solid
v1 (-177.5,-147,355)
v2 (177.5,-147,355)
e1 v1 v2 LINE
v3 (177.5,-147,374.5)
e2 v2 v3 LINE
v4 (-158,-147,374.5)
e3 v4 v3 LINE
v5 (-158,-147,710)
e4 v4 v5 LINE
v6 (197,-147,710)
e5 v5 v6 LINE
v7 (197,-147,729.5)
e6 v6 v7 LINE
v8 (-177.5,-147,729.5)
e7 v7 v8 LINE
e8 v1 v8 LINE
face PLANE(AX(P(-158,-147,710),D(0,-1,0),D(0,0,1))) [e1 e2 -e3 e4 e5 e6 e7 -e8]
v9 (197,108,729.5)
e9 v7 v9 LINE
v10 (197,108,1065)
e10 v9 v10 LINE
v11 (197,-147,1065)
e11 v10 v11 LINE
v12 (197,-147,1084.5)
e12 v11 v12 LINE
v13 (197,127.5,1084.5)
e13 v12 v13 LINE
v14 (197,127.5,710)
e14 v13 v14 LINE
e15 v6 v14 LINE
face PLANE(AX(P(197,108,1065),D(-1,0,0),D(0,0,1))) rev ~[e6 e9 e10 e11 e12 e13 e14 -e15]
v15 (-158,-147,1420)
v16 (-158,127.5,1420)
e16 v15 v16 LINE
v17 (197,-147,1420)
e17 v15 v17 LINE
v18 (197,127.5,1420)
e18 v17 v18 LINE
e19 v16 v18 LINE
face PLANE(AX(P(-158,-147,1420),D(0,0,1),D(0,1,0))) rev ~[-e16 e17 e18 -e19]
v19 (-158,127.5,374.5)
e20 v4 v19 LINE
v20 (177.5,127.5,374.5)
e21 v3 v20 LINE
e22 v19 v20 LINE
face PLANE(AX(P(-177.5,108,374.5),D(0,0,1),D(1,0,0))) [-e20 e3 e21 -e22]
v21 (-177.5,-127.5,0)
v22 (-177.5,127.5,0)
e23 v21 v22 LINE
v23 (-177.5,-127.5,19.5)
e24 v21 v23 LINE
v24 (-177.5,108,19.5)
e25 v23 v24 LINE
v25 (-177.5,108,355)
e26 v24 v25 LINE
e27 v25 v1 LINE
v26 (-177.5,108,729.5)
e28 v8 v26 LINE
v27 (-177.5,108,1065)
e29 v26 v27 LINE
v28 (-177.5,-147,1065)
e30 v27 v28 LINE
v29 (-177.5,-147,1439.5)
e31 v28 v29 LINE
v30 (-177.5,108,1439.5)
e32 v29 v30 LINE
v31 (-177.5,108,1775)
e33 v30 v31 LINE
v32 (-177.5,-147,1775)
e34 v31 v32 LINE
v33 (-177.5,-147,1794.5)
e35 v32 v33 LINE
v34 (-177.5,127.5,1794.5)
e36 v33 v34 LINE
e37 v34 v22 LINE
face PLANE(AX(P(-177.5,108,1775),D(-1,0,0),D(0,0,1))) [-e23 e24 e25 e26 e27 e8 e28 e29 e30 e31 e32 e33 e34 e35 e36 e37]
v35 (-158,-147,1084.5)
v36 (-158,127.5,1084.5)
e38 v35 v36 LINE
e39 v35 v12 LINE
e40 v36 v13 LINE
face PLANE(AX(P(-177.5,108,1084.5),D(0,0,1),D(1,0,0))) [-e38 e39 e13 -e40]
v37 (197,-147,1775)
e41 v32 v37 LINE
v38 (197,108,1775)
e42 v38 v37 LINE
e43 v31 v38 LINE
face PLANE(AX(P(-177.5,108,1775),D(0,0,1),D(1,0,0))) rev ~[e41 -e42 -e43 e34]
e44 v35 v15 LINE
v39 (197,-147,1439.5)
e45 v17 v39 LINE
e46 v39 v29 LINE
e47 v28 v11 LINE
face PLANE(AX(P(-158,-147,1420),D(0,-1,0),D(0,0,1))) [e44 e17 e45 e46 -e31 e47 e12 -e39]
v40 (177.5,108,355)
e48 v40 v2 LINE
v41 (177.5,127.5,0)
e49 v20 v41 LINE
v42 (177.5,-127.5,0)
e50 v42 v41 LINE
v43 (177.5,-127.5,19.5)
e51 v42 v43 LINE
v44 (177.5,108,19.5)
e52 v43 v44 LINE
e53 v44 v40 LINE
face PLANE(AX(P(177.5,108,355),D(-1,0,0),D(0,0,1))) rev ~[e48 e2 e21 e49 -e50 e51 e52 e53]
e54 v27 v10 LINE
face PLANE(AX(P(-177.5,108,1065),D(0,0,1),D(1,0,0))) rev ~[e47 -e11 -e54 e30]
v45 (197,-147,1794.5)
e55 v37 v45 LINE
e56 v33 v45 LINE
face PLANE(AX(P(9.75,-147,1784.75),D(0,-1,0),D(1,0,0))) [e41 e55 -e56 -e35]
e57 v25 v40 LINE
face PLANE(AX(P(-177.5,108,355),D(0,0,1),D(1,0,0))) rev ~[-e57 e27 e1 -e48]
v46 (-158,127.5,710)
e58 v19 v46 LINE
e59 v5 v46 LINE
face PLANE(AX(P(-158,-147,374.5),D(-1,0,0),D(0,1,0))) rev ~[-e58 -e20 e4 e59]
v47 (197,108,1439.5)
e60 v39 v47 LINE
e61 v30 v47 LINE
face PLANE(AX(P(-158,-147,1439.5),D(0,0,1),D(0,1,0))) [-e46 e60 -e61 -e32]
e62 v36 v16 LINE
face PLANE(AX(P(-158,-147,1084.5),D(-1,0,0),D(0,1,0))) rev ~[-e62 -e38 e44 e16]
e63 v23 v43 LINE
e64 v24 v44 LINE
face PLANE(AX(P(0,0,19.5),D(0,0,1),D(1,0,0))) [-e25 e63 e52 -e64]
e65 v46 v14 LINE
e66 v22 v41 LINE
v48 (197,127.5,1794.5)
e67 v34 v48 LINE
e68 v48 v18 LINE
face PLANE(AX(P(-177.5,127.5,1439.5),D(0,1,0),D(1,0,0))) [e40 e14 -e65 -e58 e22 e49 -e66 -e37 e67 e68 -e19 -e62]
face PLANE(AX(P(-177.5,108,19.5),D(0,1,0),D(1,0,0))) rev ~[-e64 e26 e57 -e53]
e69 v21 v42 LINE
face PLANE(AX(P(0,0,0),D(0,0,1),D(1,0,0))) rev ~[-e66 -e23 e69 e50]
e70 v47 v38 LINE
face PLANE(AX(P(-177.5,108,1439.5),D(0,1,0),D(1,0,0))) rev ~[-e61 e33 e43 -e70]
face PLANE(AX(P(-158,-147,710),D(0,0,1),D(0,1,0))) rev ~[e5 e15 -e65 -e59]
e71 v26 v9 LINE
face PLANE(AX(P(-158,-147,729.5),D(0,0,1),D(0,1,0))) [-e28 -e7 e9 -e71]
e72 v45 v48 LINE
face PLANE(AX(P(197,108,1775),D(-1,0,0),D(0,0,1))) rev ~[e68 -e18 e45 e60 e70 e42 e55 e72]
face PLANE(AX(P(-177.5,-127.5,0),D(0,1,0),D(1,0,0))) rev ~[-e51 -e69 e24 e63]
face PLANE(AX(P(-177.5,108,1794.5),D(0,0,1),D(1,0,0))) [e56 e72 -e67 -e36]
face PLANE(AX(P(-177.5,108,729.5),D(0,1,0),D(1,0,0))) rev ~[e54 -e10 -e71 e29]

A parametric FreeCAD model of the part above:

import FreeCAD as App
import Part
import Sketcher


def add_polygon(sketch, points):
    """Adds a closed chain of lines whose ends are joined by coincident constraints."""
    first, n = sketch.GeometryCount, len(points)
    for a, b in zip(points, points[1:] + points[:1]):
        sketch.addGeometry(Part.LineSegment(App.Vector(*a, 0), App.Vector(*b, 0)), False)
    for i in range(n):
        sketch.addConstraint(Sketcher.Constraint("Coincident", first + i, 2, first + (i + 1) % n, 1))

doc = App.newDocument("Part")
params = doc.addObject("Spreadsheet::Sheet", "Params")
for row, (alias, value) in enumerate([
    ("sketch1_width", "355 mm"),
    ("sketch1_height", "255 mm"),
    ("pad1_length", "19.5 mm"),
    ("sketch2_width", "355 mm"),
    ("sketch2_height", "19.5 mm"),
    ("pad2_length", "355 mm"),
    ("sketch3_width", "355 mm"),
    ("sketch3_height", "19.5 mm"),
    ("pad3_length", "255 mm"),
    ("sketch4_width", "19.5 mm"),
    ("sketch4_height", "274.5 mm"),
    ("pad4_length", "355 mm"),
    ("sketch5_width", "274.5 mm"),
    ("sketch5_height", "19.5 mm"),
    ("pad5_length", "355 mm"),
    ("sketch6_width", "374.5 mm"),
    ("sketch6_height", "19.5 mm"),
    ("pad6_length", "355 mm"),
    ("sketch7_width", "374.5 mm"),
    ("sketch7_height", "19.5 mm"),
    ("pad7_length", "255 mm"),
    ("sketch8_width", "19.5 mm"),
    ("sketch8_height", "274.5 mm"),
    ("pad8_length", "355 mm"),
    ("sketch9_width", "274.5 mm"),
    ("sketch9_height", "19.5 mm"),
    ("pad9_length", "355 mm"),
    ("sketch10_width", "374.5 mm"),
    ("sketch10_height", "19.5 mm"),
    ("pad10_length", "355 mm"),
    ("sketch11_width", "374.5 mm"),
    ("sketch11_height", "19.5 mm"),
    ("pad11_length", "255 mm"),
], start=1):
    params.set(f"A{row}", alias)
    params.set(f"B{row}", "=" + value)
    params.setAlias(f"B{row}", alias)

body = doc.addObject("PartDesign::Body", "Body")

# Sketch on XY plane
sketch1 = doc.addObject("Sketcher::SketchObject", "Sketch")
body.addObject(sketch1)
sketch1.AttachmentSupport = (doc.XY_Plane, [""])
sketch1.MapMode = "FlatFace"
add_polygon(sketch1, [(-178, 128), (-178, -128), (178, -128), (178, 128)])  # lines 0-3
sketch1.addConstraint([
    Sketcher.Constraint("Vertical", 0),
    Sketcher.Constraint("Horizontal", 1),
    Sketcher.Constraint("Vertical", 2),
    Sketcher.Constraint("Horizontal", 3),
    Sketcher.Constraint("Symmetric", 0, 2, 2, 2, -1, 1),
    Sketcher.Constraint("DistanceX", 1, 1, 1, 2, 355.0),
    Sketcher.Constraint("DistanceY", 0, 2, 0, 1, 255.0),
])
sketch1.setExpression("Constraints[9]", "Params.sketch1_width")
sketch1.setExpression("Constraints[10]", "Params.sketch1_height")
pad1 = doc.addObject("PartDesign::Pad", "Pad")
body.addObject(pad1)
pad1.Profile = sketch1
pad1.setExpression("Length", "Params.pad1_length")

# Sketch on XY plane
sketch2 = doc.addObject("Sketcher::SketchObject", "Sketch001")
body.addObject(sketch2)
sketch2.AttachmentSupport = (doc.XY_Plane, [""])
sketch2.MapMode = "FlatFace"
sketch2.AttachmentOffset = App.Placement(App.Vector(0, 0, 19.5), App.Rotation())
add_polygon(sketch2, [(-178, 128), (-178, 108), (178, 108), (178, 128)])  # lines 0-3
sketch2.addConstraint([
    Sketcher.Constraint("Vertical", 0),
    Sketcher.Constraint("Horizontal", 1),
    Sketcher.Constraint("Vertical", 2),
    Sketcher.Constraint("Horizontal", 3),
    Sketcher.Constraint("DistanceX", 1, 1, 1, 2, 355.0),
    Sketcher.Constraint("DistanceY", 0, 2, 0, 1, 19.5),
    Sketcher.Constraint("DistanceY", -1, 1, 0, 2, 108.0),
    Sketcher.Constraint("DistanceX", 0, 2, -1, 1, 177.5),
])
sketch2.setExpression("Constraints[8]", "Params.sketch2_width")
sketch2.setExpression("Constraints[9]", "Params.sketch2_height")
pad2 = doc.addObject("PartDesign::Pad", "Pad001")
body.addObject(pad2)
pad2.Profile = sketch2
pad2.setExpression("Length", "Params.pad2_length")

# Sketch on XZ plane
sketch3 = doc.addObject("Sketcher::SketchObject", "Sketch002")
body.addObject(sketch3)
sketch3.AttachmentSupport = (doc.XZ_Plane, [""])
sketch3.MapMode = "FlatFace"
sketch3.AttachmentOffset = App.Placement(App.Vector(0, 0, -108), App.Rotation())
add_polygon(sketch3, [(-178, 374), (-178, 355), (178, 355), (178, 374)])  # lines 0-3
sketch3.addConstraint([
    Sketcher.Constraint("Vertical", 0),
    Sketcher.Constraint("Horizontal", 1),
    Sketcher.Constraint("Vertical", 2),
    Sketcher.Constraint("Horizontal", 3),
    Sketcher.Constraint("DistanceX", 1, 1, 1, 2, 355.0),
    Sketcher.Constraint("DistanceY", 0, 2, 0, 1, 19.5),
    Sketcher.Constraint("DistanceY", -1, 1, 0, 2, 355.0),
    Sketcher.Constraint("DistanceX", 0, 2, -1, 1, 177.5),
])
sketch3.setExpression("Constraints[8]", "Params.sketch3_width")
sketch3.setExpression("Constraints[9]", "Params.sketch3_height")
pad3 = doc.addObject("PartDesign::Pad", "Pad002")
body.addObject(pad3)
pad3.Profile = sketch3
pad3.setExpression("Length", "Params.pad3_length")

# Sketch on XY plane
sketch4 = doc.addObject("Sketcher::SketchObject", "Sketch003")
body.addObject(sketch4)
sketch4.AttachmentSupport = (doc.XY_Plane, [""])
sketch4.MapMode = "FlatFace"
sketch4.AttachmentOffset = App.Placement(App.Vector(0, 0, 374.5), App.Rotation())
add_polygon(sketch4, [(-178, 128), (-178, -147), (-158, -147), (-158, 128)])  # lines 0-3
sketch4.addConstraint([
    Sketcher.Constraint("Vertical", 0),
    Sketcher.Constraint("Horizontal", 1),
    Sketcher.Constraint("Vertical", 2),
    Sketcher.Constraint("Horizontal", 3),
    Sketcher.Constraint("DistanceX", 1, 1, 1, 2, 19.5),
    Sketcher.Constraint("DistanceY", 0, 2, 0, 1, 274.5),
    Sketcher.Constraint("DistanceY", 0, 2, -1, 1, 147.0),
    Sketcher.Constraint("DistanceX", 1, 2, -1, 1, 158.0),
])
sketch4.setExpression("Constraints[8]", "Params.sketch4_width")
sketch4.setExpression("Constraints[9]", "Params.sketch4_height")
pad4 = doc.addObject("PartDesign::Pad", "Pad003")
body.addObject(pad4)
pad4.Profile = sketch4
pad4.setExpression("Length", "Params.pad4_length")

# Sketch on YZ plane
sketch5 = doc.addObject("Sketcher::SketchObject", "Sketch004")
body.addObject(sketch5)
sketch5.AttachmentSupport = (doc.YZ_Plane, [""])
sketch5.MapMode = "FlatFace"
sketch5.AttachmentOffset = App.Placement(App.Vector(0, 0, -158), App.Rotation())
add_polygon(sketch5, [(-147, 730), (-147, 710), (128, 710), (128, 730)])  # lines 0-3
sketch5.addConstraint([
    Sketcher.Constraint("Vertical", 0),
    Sketcher.Constraint("Horizontal", 1),
    Sketcher.Constraint("Vertical", 2),
    Sketcher.Constraint("Horizontal", 3),
    Sketcher.Constraint("DistanceX", 1, 1, 1, 2, 274.5),
    Sketcher.Constraint("DistanceY", 0, 2, 0, 1, 19.5),
    Sketcher.Constraint("DistanceX", 0, 2, -1, 1, 147.0),
    Sketcher.Constraint("DistanceY", -1, 1, 0, 2, 710.0),
])
sketch5.setExpression("Constraints[8]", "Params.sketch5_width")
sketch5.setExpression("Constraints[9]", "Params.sketch5_height")
pad5 = doc.addObject("PartDesign::Pad", "Pad004")
body.addObject(pad5)
pad5.Profile = sketch5
pad5.setExpression("Length", "Params.pad5_length")

# Sketch on XY plane
sketch6 = doc.addObject("Sketcher::SketchObject", "Sketch005")
body.addObject(sketch6)
sketch6.AttachmentSupport = (doc.XY_Plane, [""])
sketch6.MapMode = "FlatFace"
sketch6.AttachmentOffset = App.Placement(App.Vector(0, 0, 729.5), App.Rotation())
add_polygon(sketch6, [(-178, 128), (-178, 108), (197, 108), (197, 128)])  # lines 0-3
sketch6.addConstraint([
    Sketcher.Constraint("Vertical", 0),
    Sketcher.Constraint("Horizontal", 1),
    Sketcher.Constraint("Vertical", 2),
    Sketcher.Constraint("Horizontal", 3),
    Sketcher.Constraint("DistanceX", 1, 1, 1, 2, 374.5),
    Sketcher.Constraint("DistanceY", 0, 2, 0, 1, 19.5),
    Sketcher.Constraint("DistanceY", -1, 1, 0, 2, 108.0),
    Sketcher.Constraint("DistanceX", -1, 1, 1, 2, 197.0),
])
sketch6.setExpression("Constraints[8]", "Params.sketch6_width")
sketch6.setExpression("Constraints[9]", "Params.sketch6_height")
pad6 = doc.addObject("PartDesign::Pad", "Pad005")
body.addObject(pad6)
pad6.Profile = sketch6
pad6.setExpression("Length", "Params.pad6_length")

# Sketch on XZ plane
sketch7 = doc.addObject("Sketcher::SketchObject", "Sketch006")
body.addObject(sketch7)
sketch7.AttachmentSupport = (doc.XZ_Plane, [""])
sketch7.MapMode = "FlatFace"
sketch7.AttachmentOffset = App.Placement(App.Vector(0, 0, -108), App.Rotation())
add_polygon(sketch7, [(-178, 1084), (-178, 1065), (197, 1065), (197, 1084)])  # lines 0-3
sketch7.addConstraint([
    Sketcher.Constraint("Vertical", 0),
    Sketcher.Constraint("Horizontal", 1),
    Sketcher.Constraint("Vertical", 2),
    Sketcher.Constraint("Horizontal", 3),
    Sketcher.Constraint("DistanceX", 1, 1, 1, 2, 374.5),
    Sketcher.Constraint("DistanceY", 0, 2, 0, 1, 19.5),
    Sketcher.Constraint("DistanceY", -1, 1, 0, 2, 1065.0),
    Sketcher.Constraint("DistanceX", -1, 1, 1, 2, 197.0),
])
sketch7.setExpression("Constraints[8]", "Params.sketch7_width")
sketch7.setExpression("Constraints[9]", "Params.sketch7_height")
pad7 = doc.addObject("PartDesign::Pad", "Pad006")
body.addObject(pad7)
pad7.Profile = sketch7
pad7.setExpression("Length", "Params.pad7_length")

# Sketch on XY plane
sketch8 = doc.addObject("Sketcher::SketchObject", "Sketch007")
body.addObject(sketch8)
sketch8.AttachmentSupport = (doc.XY_Plane, [""])
sketch8.MapMode = "FlatFace"
sketch8.AttachmentOffset = App.Placement(App.Vector(0, 0, 1084.5), App.Rotation())
add_polygon(sketch8, [(-178, 128), (-178, -147), (-158, -147), (-158, 128)])  # lines 0-3
sketch8.addConstraint([
    Sketcher.Constraint("Vertical", 0),
    Sketcher.Constraint("Horizontal", 1),
    Sketcher.Constraint("Vertical", 2),
    Sketcher.Constraint("Horizontal", 3),
    Sketcher.Constraint("DistanceX", 1, 1, 1, 2, 19.5),
    Sketcher.Constraint("DistanceY", 0, 2, 0, 1, 274.5),
    Sketcher.Constraint("DistanceY", 0, 2, -1, 1, 147.0),
    Sketcher.Constraint("DistanceX", 1, 2, -1, 1, 158.0),
])
sketch8.setExpression("Constraints[8]", "Params.sketch8_width")
sketch8.setExpression("Constraints[9]", "Params.sketch8_height")
pad8 = doc.addObject("PartDesign::Pad", "Pad007")
body.addObject(pad8)
pad8.Profile = sketch8
pad8.setExpression("Length", "Params.pad8_length")

# Sketch on YZ plane
sketch9 = doc.addObject("Sketcher::SketchObject", "Sketch008")
body.addObject(sketch9)
sketch9.AttachmentSupport = (doc.YZ_Plane, [""])
sketch9.MapMode = "FlatFace"
sketch9.AttachmentOffset = App.Placement(App.Vector(0, 0, -158), App.Rotation())
add_polygon(sketch9, [(-147, 1440), (-147, 1420), (128, 1420), (128, 1440)])  # lines 0-3
sketch9.addConstraint([
    Sketcher.Constraint("Vertical", 0),
    Sketcher.Constraint("Horizontal", 1),
    Sketcher.Constraint("Vertical", 2),
    Sketcher.Constraint("Horizontal", 3),
    Sketcher.Constraint("DistanceX", 1, 1, 1, 2, 274.5),
    Sketcher.Constraint("DistanceY", 0, 2, 0, 1, 19.5),
    Sketcher.Constraint("DistanceX", 0, 2, -1, 1, 147.0),
    Sketcher.Constraint("DistanceY", -1, 1, 0, 2, 1420.0),
])
sketch9.setExpression("Constraints[8]", "Params.sketch9_width")
sketch9.setExpression("Constraints[9]", "Params.sketch9_height")
pad9 = doc.addObject("PartDesign::Pad", "Pad008")
body.addObject(pad9)
pad9.Profile = sketch9
pad9.setExpression("Length", "Params.pad9_length")

# Sketch on XY plane
sketch10 = doc.addObject("Sketcher::SketchObject", "Sketch009")
body.addObject(sketch10)
sketch10.AttachmentSupport = (doc.XY_Plane, [""])
sketch10.MapMode = "FlatFace"
sketch10.AttachmentOffset = App.Placement(App.Vector(0, 0, 1439.5), App.Rotation())
add_polygon(sketch10, [(-178, 128), (-178, 108), (197, 108), (197, 128)])  # lines 0-3
sketch10.addConstraint([
    Sketcher.Constraint("Vertical", 0),
    Sketcher.Constraint("Horizontal", 1),
    Sketcher.Constraint("Vertical", 2),
    Sketcher.Constraint("Horizontal", 3),
    Sketcher.Constraint("DistanceX", 1, 1, 1, 2, 374.5),
    Sketcher.Constraint("DistanceY", 0, 2, 0, 1, 19.5),
    Sketcher.Constraint("DistanceY", -1, 1, 0, 2, 108.0),
    Sketcher.Constraint("DistanceX", -1, 1, 1, 2, 197.0),
])
sketch10.setExpression("Constraints[8]", "Params.sketch10_width")
sketch10.setExpression("Constraints[9]", "Params.sketch10_height")
pad10 = doc.addObject("PartDesign::Pad", "Pad009")
body.addObject(pad10)
pad10.Profile = sketch10
pad10.setExpression("Length", "Params.pad10_length")

# Sketch on XZ plane
sketch11 = doc.addObject("Sketcher::SketchObject", "Sketch010")
body.addObject(sketch11)
sketch11.AttachmentSupport = (doc.XZ_Plane, [""])
sketch11.MapMode = "FlatFace"
sketch11.AttachmentOffset = App.Placement(App.Vector(0, 0, -108), App.Rotation())
add_polygon(sketch11, [(-178, 1794), (-178, 1775), (197, 1775), (197, 1794)])  # lines 0-3
sketch11.addConstraint([
    Sketcher.Constraint("Vertical", 0),
    Sketcher.Constraint("Horizontal", 1),
    Sketcher.Constraint("Vertical", 2),
    Sketcher.Constraint("Horizontal", 3),
    Sketcher.Constraint("DistanceX", 1, 1, 1, 2, 374.5),
    Sketcher.Constraint("DistanceY", 0, 2, 0, 1, 19.5),
    Sketcher.Constraint("DistanceY", -1, 1, 0, 2, 1775.0),
    Sketcher.Constraint("DistanceX", -1, 1, 1, 2, 197.0),
])
sketch11.setExpression("Constraints[8]", "Params.sketch11_width")
sketch11.setExpression("Constraints[9]", "Params.sketch11_height")
pad11 = doc.addObject("PartDesign::Pad", "Pad010")
body.addObject(pad11)
pad11.Profile = sketch11
pad11.setExpression("Length", "Params.pad11_length")

doc.recompute()
